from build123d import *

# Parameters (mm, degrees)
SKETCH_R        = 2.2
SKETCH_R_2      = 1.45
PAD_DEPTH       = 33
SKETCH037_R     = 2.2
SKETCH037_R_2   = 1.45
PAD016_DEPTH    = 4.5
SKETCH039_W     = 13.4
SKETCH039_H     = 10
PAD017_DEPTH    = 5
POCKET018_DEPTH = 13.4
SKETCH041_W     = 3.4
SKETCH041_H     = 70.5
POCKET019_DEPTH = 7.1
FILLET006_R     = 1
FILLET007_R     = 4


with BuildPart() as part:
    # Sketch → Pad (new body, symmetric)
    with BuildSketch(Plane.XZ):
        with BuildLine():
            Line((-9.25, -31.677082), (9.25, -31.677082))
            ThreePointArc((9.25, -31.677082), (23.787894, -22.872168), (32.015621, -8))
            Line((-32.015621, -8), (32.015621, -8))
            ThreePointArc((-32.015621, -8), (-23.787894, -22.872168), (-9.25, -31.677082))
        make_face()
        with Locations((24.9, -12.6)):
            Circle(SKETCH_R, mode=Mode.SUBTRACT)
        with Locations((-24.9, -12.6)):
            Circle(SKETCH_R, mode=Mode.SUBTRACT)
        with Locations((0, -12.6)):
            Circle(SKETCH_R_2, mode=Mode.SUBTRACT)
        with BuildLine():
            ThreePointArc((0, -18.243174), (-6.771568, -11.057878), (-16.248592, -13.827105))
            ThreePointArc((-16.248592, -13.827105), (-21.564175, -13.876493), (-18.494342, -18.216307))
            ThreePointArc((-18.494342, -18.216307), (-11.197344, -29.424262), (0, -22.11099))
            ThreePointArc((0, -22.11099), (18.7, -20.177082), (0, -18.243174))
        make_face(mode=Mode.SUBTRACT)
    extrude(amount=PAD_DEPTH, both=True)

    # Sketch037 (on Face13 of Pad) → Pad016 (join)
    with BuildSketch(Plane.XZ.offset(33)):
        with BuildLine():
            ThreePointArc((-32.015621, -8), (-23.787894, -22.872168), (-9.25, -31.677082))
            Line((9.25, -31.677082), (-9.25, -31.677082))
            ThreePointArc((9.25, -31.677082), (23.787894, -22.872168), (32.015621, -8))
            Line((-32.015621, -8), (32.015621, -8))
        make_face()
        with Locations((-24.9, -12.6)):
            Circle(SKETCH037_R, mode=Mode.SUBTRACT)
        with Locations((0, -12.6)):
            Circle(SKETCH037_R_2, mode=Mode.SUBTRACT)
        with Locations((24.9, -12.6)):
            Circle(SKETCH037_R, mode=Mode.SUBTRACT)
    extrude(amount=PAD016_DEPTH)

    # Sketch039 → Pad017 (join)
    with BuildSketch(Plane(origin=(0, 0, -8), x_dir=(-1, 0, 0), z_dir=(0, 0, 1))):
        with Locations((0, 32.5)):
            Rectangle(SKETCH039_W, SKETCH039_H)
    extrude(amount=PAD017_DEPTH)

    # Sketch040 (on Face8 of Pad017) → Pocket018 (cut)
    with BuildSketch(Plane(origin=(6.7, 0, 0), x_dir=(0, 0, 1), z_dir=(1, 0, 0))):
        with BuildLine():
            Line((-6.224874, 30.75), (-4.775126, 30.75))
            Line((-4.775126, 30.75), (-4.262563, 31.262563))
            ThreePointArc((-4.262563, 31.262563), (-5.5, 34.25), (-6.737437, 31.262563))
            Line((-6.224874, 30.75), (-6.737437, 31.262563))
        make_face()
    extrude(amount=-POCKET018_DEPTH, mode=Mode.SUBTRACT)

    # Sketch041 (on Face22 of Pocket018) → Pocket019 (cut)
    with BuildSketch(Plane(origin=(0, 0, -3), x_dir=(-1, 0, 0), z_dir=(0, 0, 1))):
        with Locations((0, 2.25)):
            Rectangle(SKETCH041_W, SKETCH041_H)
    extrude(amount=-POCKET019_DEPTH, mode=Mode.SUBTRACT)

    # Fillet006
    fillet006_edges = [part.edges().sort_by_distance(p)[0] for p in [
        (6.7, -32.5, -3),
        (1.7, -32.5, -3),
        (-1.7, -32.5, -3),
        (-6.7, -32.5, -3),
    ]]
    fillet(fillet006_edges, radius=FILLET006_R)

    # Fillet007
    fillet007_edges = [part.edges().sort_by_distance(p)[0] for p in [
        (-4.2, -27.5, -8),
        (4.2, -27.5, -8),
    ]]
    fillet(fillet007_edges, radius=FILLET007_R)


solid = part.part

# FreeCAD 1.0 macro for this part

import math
import FreeCAD as App
import Part
import Sketcher
Q = App.Units.Quantity


def edges_at(feature, points):
    """Names of the edges that pass closest to the given points."""
    edges = feature.Shape.Edges
    near = lambda p: min(range(len(edges)), key=lambda i: edges[i].distToShape(Part.Vertex(*p))[0])
    return sorted({f"Edge{near(p) + 1}" for p in points})


def add_polygon(sketch, points):
    """Adds a closed chain of lines whose ends are joined by coincident constraints."""
    first, n = sketch.GeometryCount, len(points)
    for a, b in zip(points, points[1:] + points[:1]):
        sketch.addGeometry(Part.LineSegment(App.Vector(*a, 0), App.Vector(*b, 0)), False)
    for i in range(n):
        sketch.addConstraint(Sketcher.Constraint("Coincident", first + i, 2, first + (i + 1) % n, 1))

doc = App.newDocument("Part")
body = doc.addObject("PartDesign::Body", "Body")

# Sketch on XZ plane
sketch1 = body.newObject("Sketcher::SketchObject", "Sketch")
sketch1.AttachmentSupport = (doc.getObject("XZ_Plane"), [""])
sketch1.MapMode = "FlatFace"
sketch1.addGeometry(Part.LineSegment(App.Vector(-9.2, -31.7, 0), App.Vector(9.2, -31.7, 0)), False)
sketch1.addGeometry(Part.ArcOfCircle(Part.Circle(App.Vector(0, 0, 0), App.Vector(0, 0, 1), 33), math.radians(-74), math.radians(-14)), False)
sketch1.addGeometry(Part.LineSegment(App.Vector(32, -8, 0), App.Vector(-32, -8, 0)), False)
sketch1.addGeometry(Part.ArcOfCircle(Part.Circle(App.Vector(0, 0, 0), App.Vector(0, 0, 1), 33), math.radians(-166), math.radians(-106)), False)
sketch1.addGeometry(Part.ArcOfCircle(Part.Circle(App.Vector(-9.2, -20.2, 0), App.Vector(0, 0, 1), 9.4), math.radians(12), math.radians(138)), False)
sketch1.addGeometry(Part.ArcOfCircle(Part.Circle(App.Vector(9.2, -20.2, 0), App.Vector(0, 0, 1), 9.5), math.radians(-168), math.radians(168)), False)
sketch1.addGeometry(Part.ArcOfCircle(Part.Circle(App.Vector(-9.2, -20.2, 0), App.Vector(0, 0, 1), 9.4), math.radians(168), math.radians(348)), False)
sketch1.addGeometry(Part.ArcOfCircle(Part.Circle(App.Vector(-18.9, -15.2, 0), App.Vector(0, 0, 1), 3), math.radians(28), math.radians(278)), False)
sketch1.addGeometry(Part.Circle(App.Vector(-24.9, -12.6, 0), App.Vector(0, 0, 1), 2.2), False)
sketch1.addGeometry(Part.Circle(App.Vector(0, -12.6, 0), App.Vector(0, 0, 1), 1.4), False)
sketch1.addGeometry(Part.Circle(App.Vector(24.9, -12.6, 0), App.Vector(0, 0, 1), 2.2), False)
sketch1.addConstraint(Sketcher.Constraint("Coincident", 0, 2, 1, 1))
sketch1.addConstraint(Sketcher.Constraint("Coincident", 1, 2, 2, 1))
sketch1.addConstraint(Sketcher.Constraint("Coincident", 2, 2, 3, 1))
sketch1.addConstraint(Sketcher.Constraint("Coincident", 3, 2, 0, 1))
sketch1.addConstraint(Sketcher.Constraint("Coincident", 4, 1, 5, 2))
sketch1.addConstraint(Sketcher.Constraint("Coincident", 5, 1, 6, 2))
sketch1.addConstraint(Sketcher.Constraint("Coincident", 6, 1, 7, 2))
sketch1.addConstraint(Sketcher.Constraint("Coincident", 7, 1, 4, 2))
sketch1.addConstraint(Sketcher.Constraint("Horizontal", 0))
sketch1.addConstraint(Sketcher.Constraint("Horizontal", 2))
sketch1.addConstraint(Sketcher.Constraint("Coincident", 1, 3, -1, 1))
sketch1.addConstraint(Sketcher.Constraint("Coincident", 3, 3, -1, 1))
sketch1.addConstraint(Sketcher.Constraint("Coincident", 6, 3, 4, 3))
sketch1.addConstraint(Sketcher.Constraint("Equal", 1, 3))
sketch1.addConstraint(Sketcher.Constraint("Equal", 4, 5))
sketch1.addConstraint(Sketcher.Constraint("Equal", 5, 6))
sketch1.addConstraint(Sketcher.Constraint("Equal", 8, 10))
sketch1.addConstraint(Sketcher.Constraint("Symmetric", 4, 3, 5, 3, -2))
sketch1.addConstraint(Sketcher.Constraint("Symmetric", 8, 3, 10, 3, -2))
sketch1.addConstraint(Sketcher.Constraint("PointOnObject", 9, 3, -2))
sketch1.addConstraint(Sketcher.Constraint("Horizontal", 8, 3, 9, 3))
sketch1.addConstraint(Sketcher.Constraint("Vertical", 5, 3, 0, 2))
sketch1.addConstraint(Sketcher.Constraint("Radius", 7, Q("3 mm")))
sketch1.addConstraint(Sketcher.Constraint("Diameter", 8, Q("4.4 mm")))
sketch1.addConstraint(Sketcher.Constraint("Diameter", 9, Q("2.9 mm")))
sketch1.addConstraint(Sketcher.Constraint("Radius", 4, Q("9.45 mm")))
sketch1.addConstraint(Sketcher.Constraint("DistanceX", 0, 1, 0, 2, Q("18.5 mm")))
sketch1.addConstraint(Sketcher.Constraint("DistanceY", 1, 2, -1, 1, Q("8 mm")))
sketch1.addConstraint(Sketcher.Constraint("DistanceX", 8, 3, -1, 1, Q("24.9 mm")))
sketch1.addConstraint(Sketcher.Constraint("DistanceY", 8, 3, -1, 1, Q("12.6 mm")))
sketch1.addConstraint(Sketcher.Constraint("DistanceY", 0, 2, 5, 3, Q("11.5 mm")))
sketch1.addConstraint(Sketcher.Constraint("Radius", 1, Q("33.000004 mm")))
sketch1.addConstraint(Sketcher.Constraint("DistanceX", 7, 1, -1, 1, Q("16.248592 mm")))
sketch1.addConstraint(Sketcher.Constraint("DistanceX", 7, 3, 6, 3, Q("9.643458 mm")))
pad1 = body.newObject("PartDesign::Pad", "Pad")
pad1.Profile = sketch1
pad1.Length = 66
pad1.Midplane = True

# Sketch on XZ plane
sketch2 = body.newObject("Sketcher::SketchObject", "Sketch001")
sketch2.AttachmentSupport = (doc.getObject("XZ_Plane"), [""])
sketch2.MapMode = "FlatFace"
sketch2.AttachmentOffset = App.Placement(App.Vector(0, 0, 33), App.Rotation())
sketch2.addGeometry(Part.ArcOfCircle(Part.Circle(App.Vector(0, 0, 0), App.Vector(0, 0, 1), 33), math.radians(-166), math.radians(-106)), False)
sketch2.addGeometry(Part.LineSegment(App.Vector(-9.2, -31.7, 0), App.Vector(9.2, -31.7, 0)), False)
sketch2.addGeometry(Part.ArcOfCircle(Part.Circle(App.Vector(0, 0, 0), App.Vector(0, 0, 1), 33), math.radians(-74), math.radians(-14)), False)
sketch2.addGeometry(Part.LineSegment(App.Vector(32, -8, 0), App.Vector(-32, -8, 0)), False)
sketch2.addGeometry(Part.Circle(App.Vector(-24.9, -12.6, 0), App.Vector(0, 0, 1), 2.2), False)
sketch2.addGeometry(Part.Circle(App.Vector(0, -12.6, 0), App.Vector(0, 0, 1), 1.4), False)
sketch2.addGeometry(Part.Circle(App.Vector(24.9, -12.6, 0), App.Vector(0, 0, 1), 2.2), False)
sketch2.addConstraint(Sketcher.Constraint("Coincident", 0, 2, 1, 1))
sketch2.addConstraint(Sketcher.Constraint("Coincident", 1, 2, 2, 1))
sketch2.addConstraint(Sketcher.Constraint("Coincident", 2, 2, 3, 1))
sketch2.addConstraint(Sketcher.Constraint("Coincident", 3, 2, 0, 1))
sketch2.addConstraint(Sketcher.Constraint("Horizontal", 1))
sketch2.addConstraint(Sketcher.Constraint("Horizontal", 3))
sketch2.addConstraint(Sketcher.Constraint("Coincident", 0, 3, -1, 1))
sketch2.addConstraint(Sketcher.Constraint("Coincident", 2, 3, -1, 1))
sketch2.addConstraint(Sketcher.Constraint("Equal", 0, 2))
sketch2.addConstraint(Sketcher.Constraint("Equal", 4, 6))
sketch2.addConstraint(Sketcher.Constraint("Symmetric", 4, 3, 6, 3, -2))
sketch2.addConstraint(Sketcher.Constraint("PointOnObject", 5, 3, -2))
sketch2.addConstraint(Sketcher.Constraint("Horizontal", 4, 3, 5, 3))
sketch2.addConstraint(Sketcher.Constraint("Diameter", 4, Q("4.4 mm")))
sketch2.addConstraint(Sketcher.Constraint("Diameter", 5, Q("2.9 mm")))
sketch2.addConstraint(Sketcher.Constraint("DistanceX", 1, 1, 1, 2, Q("18.5 mm")))
sketch2.addConstraint(Sketcher.Constraint("DistanceY", 2, 2, -1, 1, Q("8 mm")))
sketch2.addConstraint(Sketcher.Constraint("DistanceX", 4, 3, -1, 1, Q("24.9 mm")))
sketch2.addConstraint(Sketcher.Constraint("DistanceY", 4, 3, -1, 1, Q("12.6 mm")))
sketch2.addConstraint(Sketcher.Constraint("Radius", 0, Q("33.000004 mm")))
pad2 = body.newObject("PartDesign::Pad", "Pad001")
pad2.Profile = sketch2
pad2.Length = 4.5

# Sketch on XY plane
sketch3 = body.newObject("Sketcher::SketchObject", "Sketch002")
sketch3.AttachmentSupport = (doc.getObject("XY_Plane"), [""])
sketch3.MapMode = "FlatFace"
sketch3.AttachmentOffset = App.Placement(App.Vector(0, 0, -8), App.Rotation())
add_polygon(sketch3, [(7, -38), (7, -28), (-7, -28), (-7, -38)])  # lines 0-3
sketch3.addConstraint(Sketcher.Constraint("Vertical", 0))
sketch3.addConstraint(Sketcher.Constraint("Horizontal", 1))
sketch3.addConstraint(Sketcher.Constraint("Vertical", 2))
sketch3.addConstraint(Sketcher.Constraint("Horizontal", 3))
sketch3.addConstraint(Sketcher.Constraint("DistanceY", 0, 1, 0, 2, Q("10 mm")))
sketch3.addConstraint(Sketcher.Constraint("DistanceX", 1, 2, 1, 1, Q("13.4 mm")))
sketch3.addConstraint(Sketcher.Constraint("DistanceX", -1, 1, 0, 2, Q("6.7 mm")))
sketch3.addConstraint(Sketcher.Constraint("DistanceY", 0, 2, -1, 1, Q("27.5 mm")))
pad3 = body.newObject("PartDesign::Pad", "Pad002")
pad3.Profile = sketch3
pad3.Length = 5

# Sketch on YZ plane
sketch4 = body.newObject("Sketcher::SketchObject", "Sketch003")
sketch4.AttachmentSupport = (doc.getObject("YZ_Plane"), [""])
sketch4.MapMode = "FlatFace"
sketch4.AttachmentOffset = App.Placement(App.Vector(0, 0, 6.7), App.Rotation())
sketch4.addGeometry(Part.LineSegment(App.Vector(-30.8, -6.2, 0), App.Vector(-30.8, -4.8, 0)), False)
sketch4.addGeometry(Part.LineSegment(App.Vector(-30.8, -4.8, 0), App.Vector(-31.3, -4.3, 0)), False)
sketch4.addGeometry(Part.ArcOfCircle(Part.Circle(App.Vector(-32.5, -5.5, 0), App.Vector(0, 0, 1), 1.8), math.radians(45), math.radians(315)), False)
sketch4.addGeometry(Part.LineSegment(App.Vector(-31.3, -6.7, 0), App.Vector(-30.8, -6.2, 0)), False)
sketch4.addConstraint(Sketcher.Constraint("Coincident", 0, 2, 1, 1))
sketch4.addConstraint(Sketcher.Constraint("Tangent", 1, 2, 2, 1))
sketch4.addConstraint(Sketcher.Constraint("Tangent", 2, 2, 3, 1))
sketch4.addConstraint(Sketcher.Constraint("Coincident", 3, 2, 0, 1))
sketch4.addConstraint(Sketcher.Constraint("Vertical", 0))
sketch4.addConstraint(Sketcher.Constraint("Perpendicular", 1, 3))
sketch4.addConstraint(Sketcher.Constraint("Vertical", 1, 2, 2, 2))
sketch4.addConstraint(Sketcher.Constraint("Radius", 2, Q("1.75 mm")))
sketch4.addConstraint(Sketcher.Constraint("DistanceX", 2, 3, -1, 1, Q("32.5 mm")))
sketch4.addConstraint(Sketcher.Constraint("DistanceY", 2, 3, -1, 1, Q("5.5 mm")))
sketch4.addConstraint(Sketcher.Constraint("DistanceX", 0, 2, -1, 1, Q("30.75 mm")))
pocket1 = body.newObject("PartDesign::Pocket", "Pocket")
pocket1.Profile = sketch4
pocket1.Length = 13.4

# Sketch on XY plane
sketch5 = body.newObject("Sketcher::SketchObject", "Sketch004")
sketch5.AttachmentSupport = (doc.getObject("XY_Plane"), [""])
sketch5.MapMode = "FlatFace"
sketch5.AttachmentOffset = App.Placement(App.Vector(0, 0, -3), App.Rotation())
add_polygon(sketch5, [(1.7, -37.5), (1.7, 33), (-1.7, 33), (-1.7, -37.5)])  # lines 0-3
sketch5.addConstraint(Sketcher.Constraint("Vertical", 0))
sketch5.addConstraint(Sketcher.Constraint("Horizontal", 1))
sketch5.addConstraint(Sketcher.Constraint("Vertical", 2))
sketch5.addConstraint(Sketcher.Constraint("Horizontal", 3))
sketch5.addConstraint(Sketcher.Constraint("DistanceX", 1, 2, 1, 1, Q("3.4 mm")))
sketch5.addConstraint(Sketcher.Constraint("DistanceY", 0, 1, 0, 2, Q("70.5 mm")))
sketch5.addConstraint(Sketcher.Constraint("DistanceY", -1, 1, 0, 2, Q("33 mm")))
sketch5.addConstraint(Sketcher.Constraint("DistanceX", -1, 1, 0, 2, Q("1.7 mm")))
pocket2 = body.newObject("PartDesign::Pocket", "Pocket001")
pocket2.Profile = sketch5
pocket2.Length = 7.1
doc.recompute()

fillet = body.newObject("PartDesign::Fillet", "Fillet")
fillet.Base = (pocket2, edges_at(pocket2, [
    (6.7, -32.5, -3),
    (1.7, -32.5, -3),
    (-1.7, -32.5, -3),
    (-6.7, -32.5, -3),
]))
fillet.Radius = 1
doc.recompute()

fillet2 = body.newObject("PartDesign::Fillet", "Fillet001")
fillet2.Base = (fillet, edges_at(fillet, [(-4.2, -27.5, -8), (4.2, -27.5, -8)]))
fillet2.Radius = 4

doc.recompute()
